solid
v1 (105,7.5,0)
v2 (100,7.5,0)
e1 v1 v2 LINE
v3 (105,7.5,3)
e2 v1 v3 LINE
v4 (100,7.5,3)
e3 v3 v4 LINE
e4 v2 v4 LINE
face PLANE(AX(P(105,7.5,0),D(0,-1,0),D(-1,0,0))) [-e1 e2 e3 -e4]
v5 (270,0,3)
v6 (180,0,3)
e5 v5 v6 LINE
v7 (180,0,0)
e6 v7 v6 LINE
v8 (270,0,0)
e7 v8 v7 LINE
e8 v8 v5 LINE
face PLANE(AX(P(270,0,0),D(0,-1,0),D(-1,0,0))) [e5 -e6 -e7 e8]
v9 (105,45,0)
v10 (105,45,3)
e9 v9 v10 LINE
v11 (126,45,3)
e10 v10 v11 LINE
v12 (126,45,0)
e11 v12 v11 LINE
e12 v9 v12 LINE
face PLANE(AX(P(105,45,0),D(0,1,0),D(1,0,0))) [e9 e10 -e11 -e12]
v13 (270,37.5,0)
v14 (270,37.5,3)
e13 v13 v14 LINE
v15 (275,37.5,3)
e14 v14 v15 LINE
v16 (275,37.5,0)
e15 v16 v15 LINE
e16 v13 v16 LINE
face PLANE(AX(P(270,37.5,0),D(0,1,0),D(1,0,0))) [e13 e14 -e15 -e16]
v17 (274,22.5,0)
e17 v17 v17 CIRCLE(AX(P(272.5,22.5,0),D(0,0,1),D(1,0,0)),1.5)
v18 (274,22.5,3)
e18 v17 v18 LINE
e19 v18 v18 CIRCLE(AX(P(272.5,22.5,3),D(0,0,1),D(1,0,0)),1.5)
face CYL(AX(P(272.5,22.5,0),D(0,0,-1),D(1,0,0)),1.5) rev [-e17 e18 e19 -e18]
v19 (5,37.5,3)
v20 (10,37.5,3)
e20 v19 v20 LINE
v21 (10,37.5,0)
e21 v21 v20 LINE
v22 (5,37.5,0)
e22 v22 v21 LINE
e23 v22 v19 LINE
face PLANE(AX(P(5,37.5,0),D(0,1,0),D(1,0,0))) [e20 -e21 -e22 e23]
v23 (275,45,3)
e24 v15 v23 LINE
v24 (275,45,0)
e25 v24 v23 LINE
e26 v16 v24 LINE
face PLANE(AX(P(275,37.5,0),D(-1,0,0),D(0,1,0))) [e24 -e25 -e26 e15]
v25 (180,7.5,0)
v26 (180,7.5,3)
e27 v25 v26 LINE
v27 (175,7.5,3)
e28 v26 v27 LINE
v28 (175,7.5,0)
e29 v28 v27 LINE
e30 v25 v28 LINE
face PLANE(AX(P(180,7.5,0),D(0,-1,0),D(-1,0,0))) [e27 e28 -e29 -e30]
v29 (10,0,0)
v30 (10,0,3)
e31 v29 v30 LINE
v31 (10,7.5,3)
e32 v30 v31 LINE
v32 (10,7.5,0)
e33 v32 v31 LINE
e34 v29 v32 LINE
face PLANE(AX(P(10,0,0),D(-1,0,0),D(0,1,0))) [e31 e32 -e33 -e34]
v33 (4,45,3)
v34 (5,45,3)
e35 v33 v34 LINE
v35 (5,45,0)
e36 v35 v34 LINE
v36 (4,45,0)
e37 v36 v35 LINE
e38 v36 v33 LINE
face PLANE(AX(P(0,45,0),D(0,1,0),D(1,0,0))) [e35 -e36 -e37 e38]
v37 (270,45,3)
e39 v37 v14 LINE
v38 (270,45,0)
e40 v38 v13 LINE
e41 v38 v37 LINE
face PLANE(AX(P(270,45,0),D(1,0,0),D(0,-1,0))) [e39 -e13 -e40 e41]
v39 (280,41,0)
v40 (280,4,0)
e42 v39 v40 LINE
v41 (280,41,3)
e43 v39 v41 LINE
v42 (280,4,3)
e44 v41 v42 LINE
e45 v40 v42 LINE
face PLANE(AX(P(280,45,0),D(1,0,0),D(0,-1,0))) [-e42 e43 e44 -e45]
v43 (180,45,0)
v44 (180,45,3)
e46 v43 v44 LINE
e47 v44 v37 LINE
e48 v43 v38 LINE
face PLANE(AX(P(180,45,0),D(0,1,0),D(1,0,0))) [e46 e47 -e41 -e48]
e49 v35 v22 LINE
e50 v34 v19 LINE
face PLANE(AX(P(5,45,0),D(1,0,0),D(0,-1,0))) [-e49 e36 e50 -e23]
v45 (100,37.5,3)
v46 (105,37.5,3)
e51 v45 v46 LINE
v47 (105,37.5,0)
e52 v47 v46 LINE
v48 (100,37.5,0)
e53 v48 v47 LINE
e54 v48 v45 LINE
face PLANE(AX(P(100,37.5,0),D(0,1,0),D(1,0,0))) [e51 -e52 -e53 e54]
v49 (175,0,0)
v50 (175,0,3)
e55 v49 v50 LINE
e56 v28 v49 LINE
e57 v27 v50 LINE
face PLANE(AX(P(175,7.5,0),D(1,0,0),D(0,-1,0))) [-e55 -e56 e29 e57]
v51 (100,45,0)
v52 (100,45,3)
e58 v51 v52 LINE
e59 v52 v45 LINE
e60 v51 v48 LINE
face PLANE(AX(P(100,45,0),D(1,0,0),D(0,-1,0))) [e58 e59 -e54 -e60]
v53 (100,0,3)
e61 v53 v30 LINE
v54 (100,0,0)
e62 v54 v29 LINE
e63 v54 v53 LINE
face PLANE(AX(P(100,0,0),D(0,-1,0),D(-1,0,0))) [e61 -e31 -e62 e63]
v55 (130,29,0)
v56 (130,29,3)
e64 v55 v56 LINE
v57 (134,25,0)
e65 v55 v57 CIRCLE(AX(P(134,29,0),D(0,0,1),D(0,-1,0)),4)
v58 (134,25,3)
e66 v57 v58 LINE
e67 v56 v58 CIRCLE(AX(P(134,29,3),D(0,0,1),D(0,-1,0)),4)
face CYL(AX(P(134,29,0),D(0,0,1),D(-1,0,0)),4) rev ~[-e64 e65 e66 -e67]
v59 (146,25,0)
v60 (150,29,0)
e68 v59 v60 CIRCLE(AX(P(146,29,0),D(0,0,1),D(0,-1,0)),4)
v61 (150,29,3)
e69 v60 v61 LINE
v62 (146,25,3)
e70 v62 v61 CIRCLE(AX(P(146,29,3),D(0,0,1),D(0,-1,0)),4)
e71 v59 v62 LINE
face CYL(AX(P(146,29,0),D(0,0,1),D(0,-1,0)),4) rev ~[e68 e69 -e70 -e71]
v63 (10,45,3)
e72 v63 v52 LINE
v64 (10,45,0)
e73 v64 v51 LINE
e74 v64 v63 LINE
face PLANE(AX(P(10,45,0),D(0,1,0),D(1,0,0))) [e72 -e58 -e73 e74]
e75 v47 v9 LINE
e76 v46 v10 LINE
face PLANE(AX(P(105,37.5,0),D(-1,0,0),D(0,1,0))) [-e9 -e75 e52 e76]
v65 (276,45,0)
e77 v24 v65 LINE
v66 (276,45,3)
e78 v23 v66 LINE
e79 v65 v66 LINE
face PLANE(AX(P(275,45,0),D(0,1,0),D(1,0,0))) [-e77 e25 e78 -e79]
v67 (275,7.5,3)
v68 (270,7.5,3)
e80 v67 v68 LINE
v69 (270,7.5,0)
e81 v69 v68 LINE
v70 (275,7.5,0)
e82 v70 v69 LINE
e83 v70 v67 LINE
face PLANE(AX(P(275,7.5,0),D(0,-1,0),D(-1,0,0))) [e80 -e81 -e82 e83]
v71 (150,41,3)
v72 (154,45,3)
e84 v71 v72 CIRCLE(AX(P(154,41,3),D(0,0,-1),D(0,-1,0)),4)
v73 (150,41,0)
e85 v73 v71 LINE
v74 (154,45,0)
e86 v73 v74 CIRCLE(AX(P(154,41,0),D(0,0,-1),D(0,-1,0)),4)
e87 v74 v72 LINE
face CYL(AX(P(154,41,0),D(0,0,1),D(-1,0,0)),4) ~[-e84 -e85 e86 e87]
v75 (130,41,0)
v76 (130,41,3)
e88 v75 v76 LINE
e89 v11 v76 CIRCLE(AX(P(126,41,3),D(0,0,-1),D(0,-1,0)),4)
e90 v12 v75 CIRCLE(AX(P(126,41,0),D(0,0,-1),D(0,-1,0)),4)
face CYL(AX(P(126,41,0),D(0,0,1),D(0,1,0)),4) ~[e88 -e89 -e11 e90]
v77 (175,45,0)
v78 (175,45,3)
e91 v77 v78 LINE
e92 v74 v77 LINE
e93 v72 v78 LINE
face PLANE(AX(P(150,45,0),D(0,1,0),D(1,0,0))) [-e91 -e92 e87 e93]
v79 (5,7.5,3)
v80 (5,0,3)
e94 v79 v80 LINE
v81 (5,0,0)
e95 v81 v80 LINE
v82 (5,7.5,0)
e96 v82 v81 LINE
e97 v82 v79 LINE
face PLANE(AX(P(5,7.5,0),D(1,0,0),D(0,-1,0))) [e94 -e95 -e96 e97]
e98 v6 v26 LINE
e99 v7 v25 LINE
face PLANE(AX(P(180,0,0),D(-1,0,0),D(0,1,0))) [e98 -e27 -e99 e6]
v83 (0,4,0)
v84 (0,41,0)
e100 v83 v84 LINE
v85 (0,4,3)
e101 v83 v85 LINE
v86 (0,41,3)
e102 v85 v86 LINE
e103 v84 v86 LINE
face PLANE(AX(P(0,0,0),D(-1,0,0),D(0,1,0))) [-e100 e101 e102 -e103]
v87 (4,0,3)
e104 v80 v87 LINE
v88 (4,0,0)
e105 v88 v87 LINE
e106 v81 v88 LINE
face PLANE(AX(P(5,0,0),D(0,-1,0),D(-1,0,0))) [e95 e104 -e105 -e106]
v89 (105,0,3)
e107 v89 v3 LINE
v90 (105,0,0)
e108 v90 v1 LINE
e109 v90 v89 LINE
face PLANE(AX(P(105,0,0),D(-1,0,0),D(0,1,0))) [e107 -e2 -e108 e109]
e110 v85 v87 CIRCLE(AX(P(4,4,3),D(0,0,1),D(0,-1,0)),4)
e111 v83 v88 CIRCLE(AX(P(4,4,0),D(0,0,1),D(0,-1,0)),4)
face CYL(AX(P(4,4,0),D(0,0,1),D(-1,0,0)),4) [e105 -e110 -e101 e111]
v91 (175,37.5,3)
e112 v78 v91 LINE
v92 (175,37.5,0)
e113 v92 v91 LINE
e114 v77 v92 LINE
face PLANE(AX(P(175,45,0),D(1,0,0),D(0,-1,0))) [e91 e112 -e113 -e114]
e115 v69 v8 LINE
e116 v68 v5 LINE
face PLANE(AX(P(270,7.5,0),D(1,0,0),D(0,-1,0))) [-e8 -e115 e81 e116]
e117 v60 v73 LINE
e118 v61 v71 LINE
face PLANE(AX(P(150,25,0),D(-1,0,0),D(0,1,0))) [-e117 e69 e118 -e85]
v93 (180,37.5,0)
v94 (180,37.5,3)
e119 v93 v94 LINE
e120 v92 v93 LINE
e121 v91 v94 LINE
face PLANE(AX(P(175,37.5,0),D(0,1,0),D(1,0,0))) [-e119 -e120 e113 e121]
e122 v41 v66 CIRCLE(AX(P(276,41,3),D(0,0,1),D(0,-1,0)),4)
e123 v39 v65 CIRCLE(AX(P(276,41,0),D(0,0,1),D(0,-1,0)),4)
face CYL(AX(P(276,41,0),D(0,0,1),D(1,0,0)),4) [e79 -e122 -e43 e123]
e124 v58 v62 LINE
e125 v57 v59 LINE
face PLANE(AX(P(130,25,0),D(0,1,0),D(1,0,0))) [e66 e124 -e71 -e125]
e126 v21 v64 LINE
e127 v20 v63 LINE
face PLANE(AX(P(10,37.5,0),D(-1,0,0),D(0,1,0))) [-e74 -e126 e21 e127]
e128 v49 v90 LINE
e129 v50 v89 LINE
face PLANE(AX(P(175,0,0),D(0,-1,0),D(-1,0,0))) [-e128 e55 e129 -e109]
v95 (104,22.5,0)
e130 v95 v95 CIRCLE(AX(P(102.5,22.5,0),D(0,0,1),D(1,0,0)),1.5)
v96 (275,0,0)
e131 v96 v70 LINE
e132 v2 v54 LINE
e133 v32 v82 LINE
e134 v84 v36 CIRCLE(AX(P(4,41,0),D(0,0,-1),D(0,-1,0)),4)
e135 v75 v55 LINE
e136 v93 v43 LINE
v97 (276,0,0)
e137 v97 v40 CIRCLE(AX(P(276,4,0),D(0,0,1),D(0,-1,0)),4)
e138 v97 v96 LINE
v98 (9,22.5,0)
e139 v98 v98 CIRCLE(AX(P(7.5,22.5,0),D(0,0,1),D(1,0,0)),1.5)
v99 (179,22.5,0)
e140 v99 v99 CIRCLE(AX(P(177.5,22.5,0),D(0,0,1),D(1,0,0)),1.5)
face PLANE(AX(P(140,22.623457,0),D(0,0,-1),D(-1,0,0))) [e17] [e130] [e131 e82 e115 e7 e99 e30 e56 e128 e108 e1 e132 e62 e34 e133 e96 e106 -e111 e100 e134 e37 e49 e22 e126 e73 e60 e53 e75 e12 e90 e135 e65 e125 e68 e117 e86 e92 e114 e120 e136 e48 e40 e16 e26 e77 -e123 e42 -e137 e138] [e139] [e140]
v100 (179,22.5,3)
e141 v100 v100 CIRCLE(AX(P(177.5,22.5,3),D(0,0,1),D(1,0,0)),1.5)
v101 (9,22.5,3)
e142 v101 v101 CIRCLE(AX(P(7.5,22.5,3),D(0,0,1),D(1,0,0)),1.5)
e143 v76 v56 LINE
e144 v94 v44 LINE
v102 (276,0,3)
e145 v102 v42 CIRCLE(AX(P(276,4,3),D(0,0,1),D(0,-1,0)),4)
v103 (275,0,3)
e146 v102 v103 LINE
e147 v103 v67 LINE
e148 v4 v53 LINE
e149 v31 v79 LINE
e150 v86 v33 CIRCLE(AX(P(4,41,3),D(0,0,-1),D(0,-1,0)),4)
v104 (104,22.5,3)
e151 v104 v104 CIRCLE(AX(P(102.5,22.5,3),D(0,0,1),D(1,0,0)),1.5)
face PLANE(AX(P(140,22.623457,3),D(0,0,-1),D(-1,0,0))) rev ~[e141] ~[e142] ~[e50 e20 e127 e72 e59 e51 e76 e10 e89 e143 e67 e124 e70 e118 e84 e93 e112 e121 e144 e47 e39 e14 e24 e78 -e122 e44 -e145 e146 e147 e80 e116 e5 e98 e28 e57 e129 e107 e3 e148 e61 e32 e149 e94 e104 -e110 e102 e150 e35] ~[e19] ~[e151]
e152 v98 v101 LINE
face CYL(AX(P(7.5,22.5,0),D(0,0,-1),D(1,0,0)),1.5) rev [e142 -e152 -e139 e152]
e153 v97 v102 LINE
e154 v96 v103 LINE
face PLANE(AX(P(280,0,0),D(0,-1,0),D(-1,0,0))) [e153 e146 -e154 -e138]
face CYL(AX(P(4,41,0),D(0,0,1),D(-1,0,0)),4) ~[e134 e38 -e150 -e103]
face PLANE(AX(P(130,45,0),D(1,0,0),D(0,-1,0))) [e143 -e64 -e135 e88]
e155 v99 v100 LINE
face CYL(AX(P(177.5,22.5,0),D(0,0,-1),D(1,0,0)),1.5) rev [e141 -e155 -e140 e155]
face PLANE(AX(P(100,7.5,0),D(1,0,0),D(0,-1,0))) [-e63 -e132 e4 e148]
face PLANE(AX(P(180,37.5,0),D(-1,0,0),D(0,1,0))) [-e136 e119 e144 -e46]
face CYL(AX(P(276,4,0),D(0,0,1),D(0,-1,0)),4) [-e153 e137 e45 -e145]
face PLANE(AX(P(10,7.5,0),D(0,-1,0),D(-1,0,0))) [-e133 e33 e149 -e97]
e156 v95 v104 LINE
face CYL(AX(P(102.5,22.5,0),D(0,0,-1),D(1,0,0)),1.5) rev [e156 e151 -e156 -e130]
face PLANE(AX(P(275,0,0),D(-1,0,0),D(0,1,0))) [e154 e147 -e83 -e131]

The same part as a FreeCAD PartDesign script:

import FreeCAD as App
import Part
import Sketcher

V = App.Vector


def edges_at(feature, points):
    """Names of the edges that pass closest to the given points."""
    edges = feature.Shape.Edges
    near = lambda p: min(range(len(edges)), key=lambda i: edges[i].distToShape(Part.Vertex(*p))[0])
    return sorted({f"Edge{near(p) + 1}" for p in points})


def add_polygon(sketch, points):
    """Adds a closed chain of lines whose ends are joined by coincident constraints."""
    first, n = sketch.GeometryCount, len(points)
    for a, b in zip(points, points[1:] + points[:1]):
        sketch.addGeometry(Part.LineSegment(App.Vector(*a, 0), App.Vector(*b, 0)), False)
    for i in range(n):
        sketch.addConstraint(Sketcher.Constraint("Coincident", first + i, 2, first + (i + 1) % n, 1))

doc = App.newDocument("Part")
body = doc.addObject("PartDesign::Body", "Body")

# Sketch on XY plane
sketch1 = body.newObject("Sketcher::SketchObject", "Sketch")
sketch1.AttachmentSupport = (doc.getObject("XY_Plane"), [""])
sketch1.MapMode = "FlatFace"
add_polygon(sketch1, [(0, 45), (0, 0), (5, 0), (5, 7.5), (10, 7.5), (10, 0), (100, 0), (100, 7.5), (105, 7.5), (105, 0), (175, 0), (175, 7.5), (180, 7.5), (180, 0), (270, 0), (270, 7.5), (275, 7.5), (275, 0), (280, 0), (280, 45), (275, 45), (275, 37.5), (270, 37.5), (270, 45), (180, 45), (180, 37.5), (175, 37.5), (175, 45), (150, 45), (150, 25), (130, 25), (130, 45), (105, 45), (105, 37.5), (100, 37.5), (100, 45), (10, 45), (10, 37.5), (5, 37.5), (5, 45)])  # lines 0-39
sketch1.addGeometry(Part.Circle(V(272.5, 22.5, 0), V(0, 0, 1), 1.5), False)  # 40
sketch1.addGeometry(Part.Circle(V(177.5, 22.5, 0), V(0, 0, 1), 1.5), False)  # 41
sketch1.addGeometry(Part.Circle(V(102.5, 22.5, 0), V(0, 0, 1), 1.5), False)  # 42
sketch1.addGeometry(Part.Circle(V(7.5, 22.5, 0), V(0, 0, 1), 1.5), False)  # 43
sketch1.addConstraint([
    Sketcher.Constraint("Vertical", 0),
    Sketcher.Constraint("Horizontal", 1),
    Sketcher.Constraint("Vertical", 2),
    Sketcher.Constraint("Horizontal", 3),
    Sketcher.Constraint("Vertical", 4),
    Sketcher.Constraint("Horizontal", 5),
    Sketcher.Constraint("Vertical", 6),
    Sketcher.Constraint("Horizontal", 7),
    Sketcher.Constraint("Vertical", 8),
    Sketcher.Constraint("Horizontal", 9),
    Sketcher.Constraint("Vertical", 10),
    Sketcher.Constraint("Horizontal", 11),
    Sketcher.Constraint("Vertical", 12),
    Sketcher.Constraint("Horizontal", 13),
    Sketcher.Constraint("Vertical", 14),
    Sketcher.Constraint("Horizontal", 15),
    Sketcher.Constraint("Vertical", 16),
    Sketcher.Constraint("Horizontal", 17),
    Sketcher.Constraint("Vertical", 18),
    Sketcher.Constraint("Horizontal", 19),
    Sketcher.Constraint("Vertical", 20),
    Sketcher.Constraint("Horizontal", 21),
    Sketcher.Constraint("Vertical", 22),
    Sketcher.Constraint("Horizontal", 23),
    Sketcher.Constraint("Vertical", 24),
    Sketcher.Constraint("Horizontal", 25),
    Sketcher.Constraint("Vertical", 26),
    Sketcher.Constraint("Horizontal", 27),
    Sketcher.Constraint("Vertical", 28),
    Sketcher.Constraint("Horizontal", 29),
    Sketcher.Constraint("Vertical", 30),
    Sketcher.Constraint("Horizontal", 31),
    Sketcher.Constraint("Vertical", 32),
    Sketcher.Constraint("Horizontal", 33),
    Sketcher.Constraint("Vertical", 34),
    Sketcher.Constraint("Horizontal", 35),
    Sketcher.Constraint("Vertical", 36),
    Sketcher.Constraint("Horizontal", 37),
    Sketcher.Constraint("Vertical", 38),
    Sketcher.Constraint("Horizontal", 39),
    Sketcher.Constraint("Coincident", 0, 2, -1, 1),
    Sketcher.Constraint("Equal", 40, 41),
    Sketcher.Constraint("Equal", 41, 42),
    Sketcher.Constraint("Equal", 42, 43),
    Sketcher.Constraint("PointOnObject", 4, 2, -1),
    Sketcher.Constraint("PointOnObject", 8, 2, -1),
    Sketcher.Constraint("PointOnObject", 12, 2, -1),
    Sketcher.Constraint("PointOnObject", 16, 2, -1),
    Sketcher.Constraint("Horizontal", 40, 3, 41, 3),
    Sketcher.Constraint("Horizontal", 41, 3, 42, 3),
    Sketcher.Constraint("Horizontal", 42, 3, 43, 3),
    Sketcher.Constraint("Horizontal", 3, 2, 6, 2),
    Sketcher.Constraint("Horizontal", 7, 2, 10, 2),
    Sketcher.Constraint("Horizontal", 11, 2, 14, 2),
    Sketcher.Constraint("Horizontal", 19, 2, 22, 2),
    Sketcher.Constraint("Horizontal", 21, 2, 24, 2),
    Sketcher.Constraint("Horizontal", 23, 2, 26, 2),
    Sketcher.Constraint("Horizontal", 27, 2, 30, 2),
    Sketcher.Constraint("Horizontal", 25, 2, 32, 2),
    Sketcher.Constraint("Horizontal", 31, 2, 34, 2),
    Sketcher.Constraint("Horizontal", 33, 2, 36, 2),
    Sketcher.Constraint("Horizontal", 35, 2, 38, 2),
    Sketcher.Constraint("Vertical", 16, 2, 19, 2),
    Sketcher.Constraint("Vertical", 14, 2, 21, 2),
    Sketcher.Constraint("Vertical", 12, 2, 23, 2),
    Sketcher.Constraint("Vertical", 10, 2, 25, 2),
    Sketcher.Constraint("Vertical", 8, 2, 31, 2),
    Sketcher.Constraint("Vertical", 6, 2, 33, 2),
    Sketcher.Constraint("Vertical", 4, 2, 35, 2),
    Sketcher.Constraint("Vertical", 2, 2, 37, 2),
    Sketcher.Constraint("Equal", 1, 3),
    Sketcher.Constraint("Equal", 3, 7),
    Sketcher.Constraint("Equal", 7, 11),
    Sketcher.Constraint("Equal", 5, 13),
    Sketcher.Constraint("Equal", 11, 15),
    Sketcher.Constraint("Equal", 15, 17),
    Sketcher.Constraint("Equal", 27, 31),
    Sketcher.Constraint("Equal", 16, 20),
    Sketcher.Constraint("Equal", 29, 28),
    Sketcher.Constraint("Diameter", 40, 3.0),
    Sketcher.Constraint("DistanceX", 1, 1, 1, 2, 5.0),
    Sketcher.Constraint("DistanceX", 5, 1, 5, 2, 90.0),
    Sketcher.Constraint("DistanceX", 9, 1, 9, 2, 70.0),
    Sketcher.Constraint("DistanceX", 27, 2, 27, 1, 25.0),
    Sketcher.Constraint("DistanceY", 0, 2, 0, 1, 45.0),
    Sketcher.Constraint("DistanceY", 2, 1, 2, 2, 7.5),
    Sketcher.Constraint("DistanceX", 41, 3, 40, 3, 95.0),
    Sketcher.Constraint("DistanceX", 42, 3, 41, 3, 75.0),
    Sketcher.Constraint("DistanceX", 43, 3, 42, 3, 95.0),
    Sketcher.Constraint("DistanceY", 2, 2, 43, 3, 15.0),
    Sketcher.Constraint("DistanceX", -1, 1, 40, 3, 272.5),
])
pad1 = body.newObject("PartDesign::Pad", "Pad")
pad1.Profile = sketch1
pad1.Length = 3
doc.recompute()

fillet = body.newObject("PartDesign::Fillet", "Fillet")
fillet.Base = (pad1, edges_at(pad1, [
    (0, 0, 1.5),
    (0, 45, 1.5),
    (130, 45, 1.5),
    (130, 25, 1.5),
    (150, 25, 1.5),
    (150, 45, 1.5),
    (280, 45, 1.5),
    (280, 0, 1.5),
]))
fillet.Radius = 4

doc.recompute()
